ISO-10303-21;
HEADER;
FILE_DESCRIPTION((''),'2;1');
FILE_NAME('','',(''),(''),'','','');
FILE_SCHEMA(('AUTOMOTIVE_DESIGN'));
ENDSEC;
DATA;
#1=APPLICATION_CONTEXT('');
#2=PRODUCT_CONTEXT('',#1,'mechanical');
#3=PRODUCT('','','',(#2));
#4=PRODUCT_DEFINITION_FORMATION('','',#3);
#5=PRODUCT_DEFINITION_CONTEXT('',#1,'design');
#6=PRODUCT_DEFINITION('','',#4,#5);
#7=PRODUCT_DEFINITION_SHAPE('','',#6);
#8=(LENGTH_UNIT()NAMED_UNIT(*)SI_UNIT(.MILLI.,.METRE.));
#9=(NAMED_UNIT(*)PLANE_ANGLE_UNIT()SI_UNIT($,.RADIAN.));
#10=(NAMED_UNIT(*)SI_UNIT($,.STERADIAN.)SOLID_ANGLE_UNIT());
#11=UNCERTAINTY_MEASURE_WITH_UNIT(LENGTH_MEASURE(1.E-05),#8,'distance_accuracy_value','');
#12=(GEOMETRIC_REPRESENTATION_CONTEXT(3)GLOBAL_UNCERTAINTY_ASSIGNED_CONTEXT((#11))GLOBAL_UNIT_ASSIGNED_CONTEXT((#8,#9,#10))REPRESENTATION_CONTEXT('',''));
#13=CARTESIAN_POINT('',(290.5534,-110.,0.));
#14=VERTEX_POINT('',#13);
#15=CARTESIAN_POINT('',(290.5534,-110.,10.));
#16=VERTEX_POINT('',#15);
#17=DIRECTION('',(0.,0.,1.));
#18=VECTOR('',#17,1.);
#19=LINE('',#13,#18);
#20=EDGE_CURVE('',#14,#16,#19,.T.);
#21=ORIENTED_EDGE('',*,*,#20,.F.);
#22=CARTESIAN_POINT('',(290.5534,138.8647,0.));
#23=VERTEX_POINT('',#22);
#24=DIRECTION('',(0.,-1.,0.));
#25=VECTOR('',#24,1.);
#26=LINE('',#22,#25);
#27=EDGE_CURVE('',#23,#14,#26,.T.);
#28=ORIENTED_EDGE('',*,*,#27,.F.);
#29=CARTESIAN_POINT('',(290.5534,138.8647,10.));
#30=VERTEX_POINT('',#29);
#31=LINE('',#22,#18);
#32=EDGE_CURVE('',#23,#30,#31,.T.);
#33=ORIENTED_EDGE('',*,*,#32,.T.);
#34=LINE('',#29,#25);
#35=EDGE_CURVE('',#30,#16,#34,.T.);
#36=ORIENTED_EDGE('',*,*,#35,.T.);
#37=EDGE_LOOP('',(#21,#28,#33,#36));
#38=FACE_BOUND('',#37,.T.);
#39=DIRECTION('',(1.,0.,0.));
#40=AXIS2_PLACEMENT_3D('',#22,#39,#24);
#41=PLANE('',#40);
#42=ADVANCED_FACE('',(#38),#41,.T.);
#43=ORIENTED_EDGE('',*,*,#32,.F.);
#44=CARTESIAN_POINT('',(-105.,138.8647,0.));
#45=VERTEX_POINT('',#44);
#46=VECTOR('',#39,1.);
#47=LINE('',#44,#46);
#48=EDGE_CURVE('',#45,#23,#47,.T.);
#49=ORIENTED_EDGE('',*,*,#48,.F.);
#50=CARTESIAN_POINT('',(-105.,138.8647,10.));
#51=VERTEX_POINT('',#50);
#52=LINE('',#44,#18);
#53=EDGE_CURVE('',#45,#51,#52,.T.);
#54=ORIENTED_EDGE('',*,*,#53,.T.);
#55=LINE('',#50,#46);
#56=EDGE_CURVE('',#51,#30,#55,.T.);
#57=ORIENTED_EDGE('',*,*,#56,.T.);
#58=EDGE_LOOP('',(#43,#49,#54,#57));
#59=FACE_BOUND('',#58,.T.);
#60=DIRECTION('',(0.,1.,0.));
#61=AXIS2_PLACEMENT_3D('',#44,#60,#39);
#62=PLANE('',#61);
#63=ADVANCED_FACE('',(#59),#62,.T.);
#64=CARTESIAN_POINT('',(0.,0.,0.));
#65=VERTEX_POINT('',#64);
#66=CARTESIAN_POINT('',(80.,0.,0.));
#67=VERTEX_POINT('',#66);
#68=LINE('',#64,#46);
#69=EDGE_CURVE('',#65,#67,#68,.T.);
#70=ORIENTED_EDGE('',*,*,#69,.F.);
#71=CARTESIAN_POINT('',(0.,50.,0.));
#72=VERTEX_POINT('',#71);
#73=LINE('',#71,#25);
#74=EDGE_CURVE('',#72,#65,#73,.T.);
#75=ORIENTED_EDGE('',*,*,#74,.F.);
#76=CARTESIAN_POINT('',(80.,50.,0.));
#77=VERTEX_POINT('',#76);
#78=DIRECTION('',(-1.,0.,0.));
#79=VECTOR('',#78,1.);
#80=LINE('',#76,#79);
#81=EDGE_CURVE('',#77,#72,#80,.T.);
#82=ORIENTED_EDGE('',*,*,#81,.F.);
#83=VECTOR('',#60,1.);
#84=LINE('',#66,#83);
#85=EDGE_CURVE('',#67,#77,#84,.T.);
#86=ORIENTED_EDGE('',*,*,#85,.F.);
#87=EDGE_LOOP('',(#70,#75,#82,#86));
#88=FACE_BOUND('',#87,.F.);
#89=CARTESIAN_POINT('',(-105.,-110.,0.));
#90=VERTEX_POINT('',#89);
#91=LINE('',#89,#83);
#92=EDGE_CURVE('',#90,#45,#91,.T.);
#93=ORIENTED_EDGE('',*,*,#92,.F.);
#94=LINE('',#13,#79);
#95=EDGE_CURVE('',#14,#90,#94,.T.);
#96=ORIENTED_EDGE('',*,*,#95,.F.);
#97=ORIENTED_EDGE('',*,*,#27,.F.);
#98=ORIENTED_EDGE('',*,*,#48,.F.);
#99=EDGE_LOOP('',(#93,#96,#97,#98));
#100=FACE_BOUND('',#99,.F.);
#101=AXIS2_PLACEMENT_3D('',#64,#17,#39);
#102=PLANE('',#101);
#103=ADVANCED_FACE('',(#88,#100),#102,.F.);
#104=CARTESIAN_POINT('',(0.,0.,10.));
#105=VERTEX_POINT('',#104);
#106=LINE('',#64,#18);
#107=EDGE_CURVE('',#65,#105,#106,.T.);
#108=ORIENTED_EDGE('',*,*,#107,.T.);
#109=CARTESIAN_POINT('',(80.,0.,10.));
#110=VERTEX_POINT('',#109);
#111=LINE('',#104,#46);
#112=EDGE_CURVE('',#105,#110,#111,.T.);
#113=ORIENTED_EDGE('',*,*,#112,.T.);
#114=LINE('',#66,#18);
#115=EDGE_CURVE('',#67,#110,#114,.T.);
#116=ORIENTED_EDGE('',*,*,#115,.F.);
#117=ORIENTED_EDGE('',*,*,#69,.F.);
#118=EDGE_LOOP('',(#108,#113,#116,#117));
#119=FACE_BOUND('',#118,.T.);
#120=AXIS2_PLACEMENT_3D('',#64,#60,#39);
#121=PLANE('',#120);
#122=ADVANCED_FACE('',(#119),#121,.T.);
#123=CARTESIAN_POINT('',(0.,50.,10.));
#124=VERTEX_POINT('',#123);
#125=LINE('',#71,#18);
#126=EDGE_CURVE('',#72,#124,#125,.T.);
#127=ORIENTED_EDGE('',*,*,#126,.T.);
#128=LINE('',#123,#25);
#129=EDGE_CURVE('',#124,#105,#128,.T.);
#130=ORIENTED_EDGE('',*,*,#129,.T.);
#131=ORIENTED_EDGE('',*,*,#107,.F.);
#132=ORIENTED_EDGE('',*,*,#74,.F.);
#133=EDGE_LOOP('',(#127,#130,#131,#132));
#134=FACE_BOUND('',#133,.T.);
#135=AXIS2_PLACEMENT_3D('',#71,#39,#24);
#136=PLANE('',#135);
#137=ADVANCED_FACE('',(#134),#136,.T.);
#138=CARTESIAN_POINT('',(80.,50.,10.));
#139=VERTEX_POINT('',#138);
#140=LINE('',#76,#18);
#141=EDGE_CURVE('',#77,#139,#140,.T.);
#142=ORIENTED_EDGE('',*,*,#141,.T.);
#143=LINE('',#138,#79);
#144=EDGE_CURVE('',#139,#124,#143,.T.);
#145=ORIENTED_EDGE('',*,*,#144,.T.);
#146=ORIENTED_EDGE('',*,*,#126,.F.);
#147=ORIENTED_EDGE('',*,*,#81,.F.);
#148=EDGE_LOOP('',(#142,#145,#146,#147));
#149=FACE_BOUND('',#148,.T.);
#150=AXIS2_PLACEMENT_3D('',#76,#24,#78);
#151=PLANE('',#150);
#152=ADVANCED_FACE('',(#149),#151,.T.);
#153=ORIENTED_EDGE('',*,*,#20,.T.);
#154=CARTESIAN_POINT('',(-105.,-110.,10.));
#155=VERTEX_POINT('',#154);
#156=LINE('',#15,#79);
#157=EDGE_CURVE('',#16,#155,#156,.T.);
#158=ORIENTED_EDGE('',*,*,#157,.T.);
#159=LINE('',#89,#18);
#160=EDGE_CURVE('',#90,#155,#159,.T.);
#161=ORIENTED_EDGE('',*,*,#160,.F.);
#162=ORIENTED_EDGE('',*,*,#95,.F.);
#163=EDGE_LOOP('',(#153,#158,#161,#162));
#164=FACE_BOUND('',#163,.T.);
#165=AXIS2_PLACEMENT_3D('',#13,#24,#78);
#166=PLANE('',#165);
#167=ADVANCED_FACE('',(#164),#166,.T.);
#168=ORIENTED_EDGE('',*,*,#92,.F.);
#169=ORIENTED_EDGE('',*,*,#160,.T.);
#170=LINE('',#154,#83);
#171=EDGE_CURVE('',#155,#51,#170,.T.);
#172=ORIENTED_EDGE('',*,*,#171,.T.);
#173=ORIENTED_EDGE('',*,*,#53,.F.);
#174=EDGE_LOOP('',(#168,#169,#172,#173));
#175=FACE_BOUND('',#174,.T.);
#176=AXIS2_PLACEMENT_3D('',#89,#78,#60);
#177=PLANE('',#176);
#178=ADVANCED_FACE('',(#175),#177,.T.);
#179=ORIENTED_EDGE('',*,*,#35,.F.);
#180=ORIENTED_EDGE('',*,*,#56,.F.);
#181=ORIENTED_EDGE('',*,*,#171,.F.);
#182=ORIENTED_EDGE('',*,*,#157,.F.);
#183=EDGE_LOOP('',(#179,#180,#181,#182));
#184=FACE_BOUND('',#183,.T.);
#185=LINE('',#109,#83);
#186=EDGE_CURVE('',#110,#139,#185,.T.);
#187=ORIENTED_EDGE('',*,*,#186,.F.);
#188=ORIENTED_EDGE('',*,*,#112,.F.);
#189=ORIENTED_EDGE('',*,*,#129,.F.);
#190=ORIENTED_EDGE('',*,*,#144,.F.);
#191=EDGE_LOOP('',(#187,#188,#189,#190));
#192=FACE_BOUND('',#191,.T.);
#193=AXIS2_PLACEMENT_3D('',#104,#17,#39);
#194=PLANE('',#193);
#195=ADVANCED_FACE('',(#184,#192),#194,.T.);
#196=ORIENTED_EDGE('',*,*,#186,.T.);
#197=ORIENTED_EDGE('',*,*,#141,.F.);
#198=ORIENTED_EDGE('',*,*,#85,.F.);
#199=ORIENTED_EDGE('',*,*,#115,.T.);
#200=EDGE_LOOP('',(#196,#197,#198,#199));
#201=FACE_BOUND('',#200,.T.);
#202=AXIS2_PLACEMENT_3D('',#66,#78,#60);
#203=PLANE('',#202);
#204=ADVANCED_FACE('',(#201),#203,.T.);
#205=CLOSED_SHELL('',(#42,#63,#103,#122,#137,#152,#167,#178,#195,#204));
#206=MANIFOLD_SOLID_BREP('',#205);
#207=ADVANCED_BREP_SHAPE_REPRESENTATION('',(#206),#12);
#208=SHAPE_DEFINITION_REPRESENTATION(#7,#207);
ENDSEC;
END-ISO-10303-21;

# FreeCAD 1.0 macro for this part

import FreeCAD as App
import Part
import Sketcher

V = App.Vector


def add_polygon(sketch, points):
    """Adds a closed chain of lines whose ends are joined by coincident constraints."""
    first, n = sketch.GeometryCount, len(points)
    for a, b in zip(points, points[1:] + points[:1]):
        sketch.addGeometry(Part.LineSegment(App.Vector(*a, 0), App.Vector(*b, 0)), False)
    for i in range(n):
        sketch.addConstraint(Sketcher.Constraint("Coincident", first + i, 2, first + (i + 1) % n, 1))

doc = App.newDocument("Part")
params = doc.addObject("Spreadsheet::Sheet", "Params")
for row, (alias, value) in enumerate([
    ("sketch1_width", "80 mm"),
    ("sketch1_height", "50 mm"),
    ("pad1_length", "10 mm"),
], start=1):
    params.set(f"A{row}", alias)
    params.set(f"B{row}", "=" + value)
    params.setAlias(f"B{row}", alias)

body = doc.addObject("PartDesign::Body", "Body")

sketch1 = body.newObject("Sketcher::SketchObject", "Sketch")
sketch1.AttachmentSupport = (doc.getObject("XY_Plane"), [""])
sketch1.MapMode = "FlatFace"
add_polygon(sketch1, [(-105, -110), (291, -110), (291, 139), (-105, 139)])
add_polygon(sketch1, [(80, 0), (0, 0), (0, 50), (80, 50)])
sketch1.addConstraint([
    Sketcher.Constraint("Horizontal", 0),
    Sketcher.Constraint("Vertical", 1),
    Sketcher.Constraint("Horizontal", 2),
    Sketcher.Constraint("Vertical", 3),
    Sketcher.Constraint("Horizontal", 4),
    Sketcher.Constraint("Vertical", 5),
    Sketcher.Constraint("Horizontal", 6),
    Sketcher.Constraint("Vertical", 7),
    Sketcher.Constraint("Coincident", 4, 2, -1, 1),
    Sketcher.Constraint("DistanceX", 4, 2, 4, 1, 80.0),
    Sketcher.Constraint("DistanceY", 5, 1, 5, 2, 50.0),
    Sketcher.Constraint("DistanceY", 0, 2, -1, 1, 110.0),
    Sketcher.Constraint("DistanceX", 2, 2, -1, 1, 105.0),
    Sketcher.Constraint("DistanceX", 0, 1, 0, 2, 395.5534),
    Sketcher.Constraint("DistanceY", 1, 1, 1, 2, 248.8647),
])
sketch1.setExpression("Constraints[17]", "Params.sketch1_width")
sketch1.setExpression("Constraints[18]", "Params.sketch1_height")
pad1 = body.newObject("PartDesign::Pad", "Pad")
pad1.Profile = sketch1
pad1.setExpression("Length", "Params.pad1_length")

doc.recompute()
